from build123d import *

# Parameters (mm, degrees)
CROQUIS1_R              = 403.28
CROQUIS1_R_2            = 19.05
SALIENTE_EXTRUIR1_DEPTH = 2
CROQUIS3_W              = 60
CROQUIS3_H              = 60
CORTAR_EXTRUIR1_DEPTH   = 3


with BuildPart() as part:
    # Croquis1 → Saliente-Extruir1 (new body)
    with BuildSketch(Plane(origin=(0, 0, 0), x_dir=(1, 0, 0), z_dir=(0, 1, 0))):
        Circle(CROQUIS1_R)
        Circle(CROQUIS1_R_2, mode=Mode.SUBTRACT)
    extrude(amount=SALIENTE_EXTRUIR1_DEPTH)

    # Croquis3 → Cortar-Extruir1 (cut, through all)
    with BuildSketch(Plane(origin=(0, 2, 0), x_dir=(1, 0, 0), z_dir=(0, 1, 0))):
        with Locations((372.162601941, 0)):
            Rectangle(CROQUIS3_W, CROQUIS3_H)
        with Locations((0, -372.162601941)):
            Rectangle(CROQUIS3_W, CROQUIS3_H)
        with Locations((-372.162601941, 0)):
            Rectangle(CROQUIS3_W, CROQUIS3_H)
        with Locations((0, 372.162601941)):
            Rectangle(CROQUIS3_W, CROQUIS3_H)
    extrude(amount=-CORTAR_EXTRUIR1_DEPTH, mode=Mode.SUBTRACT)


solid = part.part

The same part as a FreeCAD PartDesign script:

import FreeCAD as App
import Part
import Sketcher
Q = App.Units.Quantity


def add_polygon(sketch, points):
    """Adds a closed chain of lines whose ends are joined by coincident constraints."""
    first, n = sketch.GeometryCount, len(points)
    for a, b in zip(points, points[1:] + points[:1]):
        sketch.addGeometry(Part.LineSegment(App.Vector(*a, 0), App.Vector(*b, 0)), False)
    for i in range(n):
        sketch.addConstraint(Sketcher.Constraint("Coincident", first + i, 2, first + (i + 1) % n, 1))

doc = App.newDocument("Part")
body = doc.addObject("PartDesign::Body", "Body")
body.AllowCompound = True

sketch1 = body.newObject("Sketcher::SketchObject", "Sketch")
sketch1.AttachmentSupport = (doc.getObject("XZ_Plane"), [""])
sketch1.MapMode = "FlatFace"
sketch1.addGeometry([
    Part.Circle(App.Vector(0, 0, 0), App.Vector(0, 0, 1), 403),
    Part.Circle(App.Vector(0, 0, 0), App.Vector(0, 0, 1), 19),
], False)
sketch1.addConstraint([
    Sketcher.Constraint("Coincident", 0, 3, -1, 1),
    Sketcher.Constraint("Coincident", 1, 3, -1, 1),
    Sketcher.Constraint("Diameter", 1, Q("38.1 mm")),
    Sketcher.Constraint("Diameter", 0, Q("806.56 mm")),
])
pad1 = body.newObject("PartDesign::Pad", "Pad")
pad1.Profile = sketch1
pad1.Length = 2
pad1.Reversed = True

sketch2 = body.newObject("Sketcher::SketchObject", "Sketch001")
sketch2.AttachmentSupport = (doc.getObject("XZ_Plane"), [""])
sketch2.MapMode = "FlatFace"
sketch2.AttachmentOffset = App.Placement(App.Vector(0, 0, -2), App.Rotation())
add_polygon(sketch2, [(342, -30), (342, 30), (402, 30), (402, -30)])
add_polygon(sketch2, [(-30, 342), (-30, 402), (30, 402), (30, 342)])
add_polygon(sketch2, [(-402, -30), (-402, 30), (-342, 30), (-342, -30)])
add_polygon(sketch2, [(-30, -402), (-30, -342), (30, -342), (30, -402)])
sketch2.addConstraint([
    Sketcher.Constraint("Vertical", 0),
    Sketcher.Constraint("Horizontal", 1),
    Sketcher.Constraint("Vertical", 2),
    Sketcher.Constraint("Horizontal", 3),
    Sketcher.Constraint("Vertical", 4),
    Sketcher.Constraint("Horizontal", 5),
    Sketcher.Constraint("Vertical", 6),
    Sketcher.Constraint("Horizontal", 7),
    Sketcher.Constraint("Vertical", 8),
    Sketcher.Constraint("Horizontal", 9),
    Sketcher.Constraint("Vertical", 10),
    Sketcher.Constraint("Horizontal", 11),
    Sketcher.Constraint("Vertical", 12),
    Sketcher.Constraint("Horizontal", 13),
    Sketcher.Constraint("Vertical", 14),
    Sketcher.Constraint("Horizontal", 15),
    Sketcher.Constraint("Symmetric", 2, 2, 8, 2, -1, 1),
    Sketcher.Constraint("Symmetric", 0, 2, 10, 2, -1, 1),
    Sketcher.Constraint("Symmetric", 6, 2, 12, 2, -1, 1),
    Sketcher.Constraint("Symmetric", 4, 2, 14, 2, -1, 1),
    Sketcher.Constraint("Horizontal", 1, 2, 8, 2),
    Sketcher.Constraint("Vertical", 7, 2, 12, 2),
    Sketcher.Constraint("Equal", 3, 5),
    Sketcher.Constraint("Equal", 15, 0),
    Sketcher.Constraint("Equal", 2, 4),
    Sketcher.Constraint("DistanceX", 1, 1, 1, 2, Q("60 mm")),
    Sketcher.Constraint("DistanceX", -1, 1, 0, 2, Q("342.162602 mm")),
    Sketcher.Constraint("DistanceY", -1, 1, 4, 2, Q("402.162602 mm")),
])
pocket1 = body.newObject("PartDesign::Pocket", "Pocket")
pocket1.Profile = sketch2
pocket1.Type = "ThroughAll"
pocket1.Reversed = True

doc.recompute()
